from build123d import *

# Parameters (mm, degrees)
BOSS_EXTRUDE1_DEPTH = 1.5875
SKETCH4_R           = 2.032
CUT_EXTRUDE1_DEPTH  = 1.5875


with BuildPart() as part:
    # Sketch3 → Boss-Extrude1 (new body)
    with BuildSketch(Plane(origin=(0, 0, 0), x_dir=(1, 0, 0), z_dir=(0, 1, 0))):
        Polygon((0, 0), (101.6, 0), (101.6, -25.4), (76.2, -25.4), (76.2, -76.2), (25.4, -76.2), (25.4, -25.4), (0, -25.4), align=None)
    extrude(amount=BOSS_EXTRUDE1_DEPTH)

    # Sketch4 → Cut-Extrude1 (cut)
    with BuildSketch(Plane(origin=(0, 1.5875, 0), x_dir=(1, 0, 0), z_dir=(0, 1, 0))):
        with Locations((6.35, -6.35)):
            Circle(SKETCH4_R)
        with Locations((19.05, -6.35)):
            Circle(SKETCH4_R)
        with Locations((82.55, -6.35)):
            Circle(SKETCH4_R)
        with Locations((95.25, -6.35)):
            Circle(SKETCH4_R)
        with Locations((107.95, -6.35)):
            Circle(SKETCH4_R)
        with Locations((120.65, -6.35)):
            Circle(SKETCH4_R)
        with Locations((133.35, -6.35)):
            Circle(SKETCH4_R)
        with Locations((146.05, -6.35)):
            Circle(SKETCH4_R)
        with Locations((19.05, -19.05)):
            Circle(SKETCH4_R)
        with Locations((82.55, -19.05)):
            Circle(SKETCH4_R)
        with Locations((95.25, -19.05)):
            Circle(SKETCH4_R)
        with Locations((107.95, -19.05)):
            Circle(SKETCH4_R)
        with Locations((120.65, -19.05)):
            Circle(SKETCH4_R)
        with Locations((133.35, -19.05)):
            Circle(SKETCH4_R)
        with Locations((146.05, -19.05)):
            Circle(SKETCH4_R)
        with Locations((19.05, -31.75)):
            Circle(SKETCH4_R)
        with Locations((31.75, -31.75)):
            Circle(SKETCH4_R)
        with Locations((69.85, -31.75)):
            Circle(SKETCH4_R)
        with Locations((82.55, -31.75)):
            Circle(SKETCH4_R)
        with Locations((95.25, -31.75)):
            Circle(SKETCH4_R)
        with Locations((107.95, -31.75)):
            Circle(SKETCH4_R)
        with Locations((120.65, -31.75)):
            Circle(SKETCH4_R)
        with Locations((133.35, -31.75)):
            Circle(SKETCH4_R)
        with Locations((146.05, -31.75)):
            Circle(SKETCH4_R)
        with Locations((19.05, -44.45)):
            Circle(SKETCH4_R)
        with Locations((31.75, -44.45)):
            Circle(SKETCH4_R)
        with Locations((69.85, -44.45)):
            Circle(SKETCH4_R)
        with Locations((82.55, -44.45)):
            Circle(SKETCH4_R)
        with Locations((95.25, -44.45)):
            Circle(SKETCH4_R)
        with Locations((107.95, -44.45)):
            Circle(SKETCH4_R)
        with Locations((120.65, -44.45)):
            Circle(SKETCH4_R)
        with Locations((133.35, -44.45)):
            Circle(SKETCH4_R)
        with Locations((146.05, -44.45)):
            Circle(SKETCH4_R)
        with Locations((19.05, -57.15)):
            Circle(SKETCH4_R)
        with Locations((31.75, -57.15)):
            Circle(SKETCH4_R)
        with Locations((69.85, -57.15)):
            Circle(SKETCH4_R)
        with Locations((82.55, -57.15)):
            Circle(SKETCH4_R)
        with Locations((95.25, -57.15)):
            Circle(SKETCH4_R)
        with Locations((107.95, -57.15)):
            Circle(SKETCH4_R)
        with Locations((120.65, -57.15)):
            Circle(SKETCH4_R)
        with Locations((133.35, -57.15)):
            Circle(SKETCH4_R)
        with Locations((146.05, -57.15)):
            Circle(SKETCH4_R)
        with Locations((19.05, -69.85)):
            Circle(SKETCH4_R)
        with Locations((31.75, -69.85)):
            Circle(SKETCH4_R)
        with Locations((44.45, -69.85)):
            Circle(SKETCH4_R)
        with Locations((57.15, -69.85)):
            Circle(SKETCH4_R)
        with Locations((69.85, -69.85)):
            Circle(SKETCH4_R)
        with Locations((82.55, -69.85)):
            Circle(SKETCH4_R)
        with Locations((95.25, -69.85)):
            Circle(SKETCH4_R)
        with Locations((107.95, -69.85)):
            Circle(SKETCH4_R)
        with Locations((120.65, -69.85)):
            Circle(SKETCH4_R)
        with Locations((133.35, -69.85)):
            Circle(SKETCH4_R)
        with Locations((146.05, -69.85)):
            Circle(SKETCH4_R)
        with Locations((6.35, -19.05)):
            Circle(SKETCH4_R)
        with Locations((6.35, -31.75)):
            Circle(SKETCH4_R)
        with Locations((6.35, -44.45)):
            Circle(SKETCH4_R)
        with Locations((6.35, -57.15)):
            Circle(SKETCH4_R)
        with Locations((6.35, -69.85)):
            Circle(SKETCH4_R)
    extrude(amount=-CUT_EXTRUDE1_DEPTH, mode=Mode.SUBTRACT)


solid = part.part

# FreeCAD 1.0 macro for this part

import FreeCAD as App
import Part
import Sketcher

V = App.Vector
Q = App.Units.Quantity

doc = App.newDocument("Part")
body = doc.addObject("PartDesign::Body", "Body")

# Sketch on XZ plane
sketch1 = doc.addObject("Sketcher::SketchObject", "Sketch")
body.addObject(sketch1)
sketch1.AttachmentSupport = (doc.XZ_Plane, [""])
sketch1.MapMode = "FlatFace"
sketch1.addGeometry([
    Part.LineSegment(V(101.6, 0, 0), V(0, 0, 0)),  # 0
    Part.LineSegment(V(0, 0, 0), V(0, 25.4, 0)),  # 1
    Part.LineSegment(V(0, 25.4, 0), V(25.4, 25.4, 0)),  # 2
    Part.LineSegment(V(25.4, 25.4, 0), V(25.4, 76.2, 0)),  # 3
    Part.LineSegment(V(25.4, 76.2, 0), V(76.2, 76.2, 0)),  # 4
    Part.LineSegment(V(76.2, 76.2, 0), V(76.2, 25.4, 0)),  # 5
    Part.LineSegment(V(76.2, 25.4, 0), V(101.6, 25.4, 0)),  # 6
    Part.LineSegment(V(101.6, 25.4, 0), V(101.6, 0, 0)),  # 7
], False)
sketch1.addConstraint([
    Sketcher.Constraint("Coincident", 0, 2, 1, 1),
    Sketcher.Constraint("Coincident", 1, 2, 2, 1),
    Sketcher.Constraint("Coincident", 2, 2, 3, 1),
    Sketcher.Constraint("Coincident", 3, 2, 4, 1),
    Sketcher.Constraint("Coincident", 4, 2, 5, 1),
    Sketcher.Constraint("Coincident", 5, 2, 6, 1),
    Sketcher.Constraint("Coincident", 6, 2, 7, 1),
    Sketcher.Constraint("Coincident", 7, 2, 0, 1),
    Sketcher.Constraint("Horizontal", 0),
    Sketcher.Constraint("Vertical", 1),
    Sketcher.Constraint("Horizontal", 2),
    Sketcher.Constraint("Vertical", 3),
    Sketcher.Constraint("Horizontal", 4),
    Sketcher.Constraint("Vertical", 5),
    Sketcher.Constraint("Horizontal", 6),
    Sketcher.Constraint("Vertical", 7),
    Sketcher.Constraint("Coincident", 0, 2, -1, 1),
    Sketcher.Constraint("Horizontal", 2, 2, 5, 2),
    Sketcher.Constraint("Equal", 2, 6),
    Sketcher.Constraint("Equal", 6, 1),
    Sketcher.Constraint("Equal", 4, 3),
    Sketcher.Constraint("DistanceX", 0, 2, 0, 1, Q("4 in")),
    Sketcher.Constraint("DistanceX", 2, 1, 2, 2, Q("1 in")),
])
pad1 = doc.addObject("PartDesign::Pad", "Pad")
body.addObject(pad1)
pad1.Profile = sketch1
pad1.Length = Q("0.0625 in")
pad1.Reversed = True

# Sketch on XZ plane
sketch2 = doc.addObject("Sketcher::SketchObject", "Sketch001")
body.addObject(sketch2)
sketch2.AttachmentSupport = (doc.XZ_Plane, [""])
sketch2.MapMode = "FlatFace"
sketch2.AttachmentOffset = App.Placement(V(0, 0, -0.0625 * 25.4), App.Rotation())
sketch2.addGeometry([
    Part.Circle(V(6.35, 6.35, 0), V(0, 0, 1), 2.032),  # 0
    Part.Circle(V(19.05, 6.35, 0), V(0, 0, 1), 2.032),  # 1
    Part.Circle(V(82.55, 6.35, 0), V(0, 0, 1), 2.032),  # 2
    Part.Circle(V(95.25, 6.35, 0), V(0, 0, 1), 2.032),  # 3
    Part.Circle(V(107.95, 6.35, 0), V(0, 0, 1), 2.032),  # 4
    Part.Circle(V(120.65, 6.35, 0), V(0, 0, 1), 2.032),  # 5
    Part.Circle(V(133.35, 6.35, 0), V(0, 0, 1), 2.032),  # 6
    Part.Circle(V(146.05, 6.35, 0), V(0, 0, 1), 2.032),  # 7
    Part.Circle(V(19.05, 19.05, 0), V(0, 0, 1), 2.032),  # 8
    Part.Circle(V(82.55, 19.05, 0), V(0, 0, 1), 2.032),  # 9
    Part.Circle(V(95.25, 19.05, 0), V(0, 0, 1), 2.032),  # 10
    Part.Circle(V(107.95, 19.05, 0), V(0, 0, 1), 2.032),  # 11
    Part.Circle(V(120.65, 19.05, 0), V(0, 0, 1), 2.032),  # 12
    Part.Circle(V(133.35, 19.05, 0), V(0, 0, 1), 2.032),  # 13
    Part.Circle(V(146.05, 19.05, 0), V(0, 0, 1), 2.032),  # 14
    Part.Circle(V(19.05, 31.75, 0), V(0, 0, 1), 2.032),  # 15
    Part.Circle(V(31.75, 31.75, 0), V(0, 0, 1), 2.032),  # 16
    Part.Circle(V(69.85, 31.75, 0), V(0, 0, 1), 2.032),  # 17
    Part.Circle(V(82.55, 31.75, 0), V(0, 0, 1), 2.032),  # 18
    Part.Circle(V(95.25, 31.75, 0), V(0, 0, 1), 2.032),  # 19
    Part.Circle(V(107.95, 31.75, 0), V(0, 0, 1), 2.032),  # 20
    Part.Circle(V(120.65, 31.75, 0), V(0, 0, 1), 2.032),  # 21
    Part.Circle(V(133.35, 31.75, 0), V(0, 0, 1), 2.032),  # 22
    Part.Circle(V(146.05, 31.75, 0), V(0, 0, 1), 2.032),  # 23
    Part.Circle(V(19.05, 44.45, 0), V(0, 0, 1), 2.032),  # 24
    Part.Circle(V(31.75, 44.45, 0), V(0, 0, 1), 2.032),  # 25
    Part.Circle(V(69.85, 44.45, 0), V(0, 0, 1), 2.032),  # 26
    Part.Circle(V(82.55, 44.45, 0), V(0, 0, 1), 2.032),  # 27
    Part.Circle(V(95.25, 44.45, 0), V(0, 0, 1), 2.032),  # 28
    Part.Circle(V(107.95, 44.45, 0), V(0, 0, 1), 2.032),  # 29
    Part.Circle(V(120.65, 44.45, 0), V(0, 0, 1), 2.032),  # 30
    Part.Circle(V(133.35, 44.45, 0), V(0, 0, 1), 2.032),  # 31
    Part.Circle(V(146.05, 44.45, 0), V(0, 0, 1), 2.032),  # 32
    Part.Circle(V(19.05, 57.15, 0), V(0, 0, 1), 2.032),  # 33
    Part.Circle(V(31.75, 57.15, 0), V(0, 0, 1), 2.032),  # 34
    Part.Circle(V(69.85, 57.15, 0), V(0, 0, 1), 2.032),  # 35
    Part.Circle(V(82.55, 57.15, 0), V(0, 0, 1), 2.032),  # 36
    Part.Circle(V(95.25, 57.15, 0), V(0, 0, 1), 2.032),  # 37
    Part.Circle(V(107.95, 57.15, 0), V(0, 0, 1), 2.032),  # 38
    Part.Circle(V(120.65, 57.15, 0), V(0, 0, 1), 2.032),  # 39
    Part.Circle(V(133.35, 57.15, 0), V(0, 0, 1), 2.032),  # 40
    Part.Circle(V(146.05, 57.15, 0), V(0, 0, 1), 2.032),  # 41
    Part.Circle(V(19.05, 69.85, 0), V(0, 0, 1), 2.032),  # 42
    Part.Circle(V(31.75, 69.85, 0), V(0, 0, 1), 2.032),  # 43
    Part.Circle(V(44.45, 69.85, 0), V(0, 0, 1), 2.032),  # 44
    Part.Circle(V(57.15, 69.85, 0), V(0, 0, 1), 2.032),  # 45
    Part.Circle(V(69.85, 69.85, 0), V(0, 0, 1), 2.032),  # 46
    Part.Circle(V(82.55, 69.85, 0), V(0, 0, 1), 2.032),  # 47
    Part.Circle(V(95.25, 69.85, 0), V(0, 0, 1), 2.032),  # 48
    Part.Circle(V(107.95, 69.85, 0), V(0, 0, 1), 2.032),  # 49
    Part.Circle(V(120.65, 69.85, 0), V(0, 0, 1), 2.032),  # 50
    Part.Circle(V(133.35, 69.85, 0), V(0, 0, 1), 2.032),  # 51
    Part.Circle(V(146.05, 69.85, 0), V(0, 0, 1), 2.032),  # 52
    Part.Circle(V(6.35, 19.05, 0), V(0, 0, 1), 2.032),  # 53
    Part.Circle(V(6.35, 31.75, 0), V(0, 0, 1), 2.032),  # 54
    Part.Circle(V(6.35, 44.45, 0), V(0, 0, 1), 2.032),  # 55
    Part.Circle(V(6.35, 57.15, 0), V(0, 0, 1), 2.032),  # 56
    Part.Circle(V(6.35, 69.85, 0), V(0, 0, 1), 2.032),  # 57
], False)
sketch2.addConstraint([
    Sketcher.Constraint("Equal", 0, 1),
    Sketcher.Constraint("Equal", 1, 2),
    Sketcher.Constraint("Equal", 2, 3),
    Sketcher.Constraint("Equal", 3, 4),
    Sketcher.Constraint("Equal", 4, 5),
    Sketcher.Constraint("Equal", 5, 6),
    Sketcher.Constraint("Equal", 6, 7),
    Sketcher.Constraint("Equal", 7, 8),
    Sketcher.Constraint("Equal", 8, 9),
    Sketcher.Constraint("Equal", 9, 10),
    Sketcher.Constraint("Equal", 10, 11),
    Sketcher.Constraint("Equal", 11, 12),
    Sketcher.Constraint("Equal", 12, 13),
    Sketcher.Constraint("Equal", 13, 14),
    Sketcher.Constraint("Equal", 14, 15),
    Sketcher.Constraint("Equal", 15, 16),
    Sketcher.Constraint("Equal", 16, 17),
    Sketcher.Constraint("Equal", 17, 18),
    Sketcher.Constraint("Equal", 18, 19),
    Sketcher.Constraint("Equal", 19, 20),
    Sketcher.Constraint("Equal", 20, 21),
    Sketcher.Constraint("Equal", 21, 22),
    Sketcher.Constraint("Equal", 22, 23),
    Sketcher.Constraint("Equal", 23, 24),
    Sketcher.Constraint("Equal", 24, 25),
    Sketcher.Constraint("Equal", 25, 26),
    Sketcher.Constraint("Equal", 26, 27),
    Sketcher.Constraint("Equal", 27, 28),
    Sketcher.Constraint("Equal", 28, 29),
    Sketcher.Constraint("Equal", 29, 30),
    Sketcher.Constraint("Equal", 30, 31),
    Sketcher.Constraint("Equal", 31, 32),
    Sketcher.Constraint("Equal", 32, 33),
    Sketcher.Constraint("Equal", 33, 34),
    Sketcher.Constraint("Equal", 34, 35),
    Sketcher.Constraint("Equal", 35, 36),
    Sketcher.Constraint("Equal", 36, 37),
    Sketcher.Constraint("Equal", 37, 38),
    Sketcher.Constraint("Equal", 38, 39),
    Sketcher.Constraint("Equal", 39, 40),
    Sketcher.Constraint("Equal", 40, 41),
    Sketcher.Constraint("Equal", 41, 42),
    Sketcher.Constraint("Equal", 42, 43),
    Sketcher.Constraint("Equal", 43, 44),
    Sketcher.Constraint("Equal", 44, 45),
    Sketcher.Constraint("Equal", 45, 46),
    Sketcher.Constraint("Equal", 46, 47),
    Sketcher.Constraint("Equal", 47, 48),
    Sketcher.Constraint("Equal", 48, 49),
    Sketcher.Constraint("Equal", 49, 50),
    Sketcher.Constraint("Equal", 50, 51),
    Sketcher.Constraint("Equal", 51, 52),
    Sketcher.Constraint("Equal", 52, 53),
    Sketcher.Constraint("Equal", 53, 54),
    Sketcher.Constraint("Equal", 54, 55),
    Sketcher.Constraint("Equal", 55, 56),
    Sketcher.Constraint("Equal", 56, 57),
    Sketcher.Constraint("Horizontal", 0, 3, 1, 3),
    Sketcher.Constraint("Horizontal", 1, 3, 2, 3),
    Sketcher.Constraint("Horizontal", 2, 3, 3, 3),
    Sketcher.Constraint("Horizontal", 3, 3, 4, 3),
    Sketcher.Constraint("Horizontal", 4, 3, 5, 3),
    Sketcher.Constraint("Horizontal", 5, 3, 6, 3),
    Sketcher.Constraint("Horizontal", 6, 3, 7, 3),
    Sketcher.Constraint("Horizontal", 8, 3, 9, 3),
    Sketcher.Constraint("Horizontal", 9, 3, 10, 3),
    Sketcher.Constraint("Horizontal", 10, 3, 11, 3),
    Sketcher.Constraint("Horizontal", 11, 3, 12, 3),
    Sketcher.Constraint("Horizontal", 12, 3, 13, 3),
    Sketcher.Constraint("Horizontal", 13, 3, 14, 3),
    Sketcher.Constraint("Horizontal", 15, 3, 16, 3),
    Sketcher.Constraint("Horizontal", 16, 3, 17, 3),
    Sketcher.Constraint("Horizontal", 17, 3, 18, 3),
    Sketcher.Constraint("Horizontal", 18, 3, 19, 3),
    Sketcher.Constraint("Horizontal", 19, 3, 20, 3),
    Sketcher.Constraint("Horizontal", 20, 3, 21, 3),
    Sketcher.Constraint("Horizontal", 21, 3, 22, 3),
    Sketcher.Constraint("Horizontal", 22, 3, 23, 3),
    Sketcher.Constraint("Horizontal", 24, 3, 25, 3),
    Sketcher.Constraint("Horizontal", 25, 3, 26, 3),
    Sketcher.Constraint("Horizontal", 26, 3, 27, 3),
    Sketcher.Constraint("Horizontal", 27, 3, 28, 3),
    Sketcher.Constraint("Horizontal", 28, 3, 29, 3),
    Sketcher.Constraint("Horizontal", 29, 3, 30, 3),
    Sketcher.Constraint("Horizontal", 30, 3, 31, 3),
    Sketcher.Constraint("Horizontal", 31, 3, 32, 3),
    Sketcher.Constraint("Horizontal", 33, 3, 34, 3),
    Sketcher.Constraint("Horizontal", 34, 3, 35, 3),
    Sketcher.Constraint("Horizontal", 35, 3, 36, 3),
    Sketcher.Constraint("Horizontal", 36, 3, 37, 3),
    Sketcher.Constraint("Horizontal", 37, 3, 38, 3),
    Sketcher.Constraint("Horizontal", 38, 3, 39, 3),
    Sketcher.Constraint("Horizontal", 39, 3, 40, 3),
    Sketcher.Constraint("Horizontal", 40, 3, 41, 3),
    Sketcher.Constraint("Horizontal", 42, 3, 43, 3),
    Sketcher.Constraint("Horizontal", 43, 3, 44, 3),
    Sketcher.Constraint("Horizontal", 44, 3, 45, 3),
    Sketcher.Constraint("Horizontal", 45, 3, 46, 3),
    Sketcher.Constraint("Horizontal", 46, 3, 47, 3),
    Sketcher.Constraint("Horizontal", 47, 3, 48, 3),
    Sketcher.Constraint("Horizontal", 48, 3, 49, 3),
    Sketcher.Constraint("Horizontal", 49, 3, 50, 3),
    Sketcher.Constraint("Horizontal", 50, 3, 51, 3),
    Sketcher.Constraint("Horizontal", 51, 3, 52, 3),
    Sketcher.Constraint("Horizontal", 14, 3, 53, 3),
    Sketcher.Constraint("Horizontal", 23, 3, 54, 3),
    Sketcher.Constraint("Horizontal", 32, 3, 55, 3),
    Sketcher.Constraint("Horizontal", 41, 3, 56, 3),
    Sketcher.Constraint("Horizontal", 52, 3, 57, 3),
    Sketcher.Constraint("Vertical", 1, 3, 8, 3),
    Sketcher.Constraint("Vertical", 2, 3, 9, 3),
    Sketcher.Constraint("Vertical", 3, 3, 10, 3),
    Sketcher.Constraint("Vertical", 4, 3, 11, 3),
    Sketcher.Constraint("Vertical", 5, 3, 12, 3),
    Sketcher.Constraint("Vertical", 6, 3, 13, 3),
    Sketcher.Constraint("Vertical", 7, 3, 14, 3),
    Sketcher.Constraint("Vertical", 8, 3, 15, 3),
    Sketcher.Constraint("Vertical", 9, 3, 18, 3),
    Sketcher.Constraint("Vertical", 10, 3, 19, 3),
    Sketcher.Constraint("Vertical", 11, 3, 20, 3),
    Sketcher.Constraint("Vertical", 12, 3, 21, 3),
    Sketcher.Constraint("Vertical", 13, 3, 22, 3),
    Sketcher.Constraint("Vertical", 14, 3, 23, 3),
    Sketcher.Constraint("Vertical", 15, 3, 24, 3),
    Sketcher.Constraint("Vertical", 16, 3, 25, 3),
    Sketcher.Constraint("Vertical", 17, 3, 26, 3),
    Sketcher.Constraint("Vertical", 18, 3, 27, 3),
    Sketcher.Constraint("Vertical", 19, 3, 28, 3),
    Sketcher.Constraint("Vertical", 20, 3, 29, 3),
    Sketcher.Constraint("Vertical", 21, 3, 30, 3),
    Sketcher.Constraint("Vertical", 22, 3, 31, 3),
    Sketcher.Constraint("Vertical", 23, 3, 32, 3),
    Sketcher.Constraint("Vertical", 24, 3, 33, 3),
    Sketcher.Constraint("Vertical", 25, 3, 34, 3),
    Sketcher.Constraint("Vertical", 26, 3, 35, 3),
    Sketcher.Constraint("Vertical", 27, 3, 36, 3),
    Sketcher.Constraint("Vertical", 28, 3, 37, 3),
    Sketcher.Constraint("Vertical", 29, 3, 38, 3),
    Sketcher.Constraint("Vertical", 30, 3, 39, 3),
    Sketcher.Constraint("Vertical", 31, 3, 40, 3),
    Sketcher.Constraint("Vertical", 32, 3, 41, 3),
    Sketcher.Constraint("Vertical", 33, 3, 42, 3),
    Sketcher.Constraint("Vertical", 34, 3, 43, 3),
    Sketcher.Constraint("Vertical", 35, 3, 46, 3),
    Sketcher.Constraint("Vertical", 36, 3, 47, 3),
    Sketcher.Constraint("Vertical", 37, 3, 48, 3),
    Sketcher.Constraint("Vertical", 38, 3, 49, 3),
    Sketcher.Constraint("Vertical", 39, 3, 50, 3),
    Sketcher.Constraint("Vertical", 40, 3, 51, 3),
    Sketcher.Constraint("Vertical", 41, 3, 52, 3),
    Sketcher.Constraint("Vertical", 0, 3, 53, 3),
    Sketcher.Constraint("Vertical", 53, 3, 54, 3),
    Sketcher.Constraint("Vertical", 54, 3, 55, 3),
    Sketcher.Constraint("Vertical", 55, 3, 56, 3),
    Sketcher.Constraint("Vertical", 56, 3, 57, 3),
    Sketcher.Constraint("Diameter", 0, Q("0.16 in")),
    Sketcher.Constraint("DistanceX", 0, 3, 2, 3, Q("3 in")),
    Sketcher.Constraint("DistanceX", 1, 3, 3, 3, Q("3 in")),
    Sketcher.Constraint("DistanceX", 2, 3, 4, 3, Q("1 in")),
    Sketcher.Constraint("DistanceX", 3, 3, 5, 3, Q("1 in")),
    Sketcher.Constraint("DistanceX", 4, 3, 6, 3, Q("1 in")),
    Sketcher.Constraint("DistanceX", 5, 3, 7, 3, Q("1 in")),
    Sketcher.Constraint("DistanceY", 1, 3, 15, 3, Q("1 in")),
    Sketcher.Constraint("DistanceX", 0, 3, 16, 3, Q("1 in")),
    Sketcher.Constraint("DistanceX", 17, 3, 10, 3, Q("1 in")),
    Sketcher.Constraint("DistanceY", 8, 3, 24, 3, Q("1 in")),
    Sketcher.Constraint("DistanceY", 15, 3, 33, 3, Q("1 in")),
    Sketcher.Constraint("DistanceY", 24, 3, 42, 3, Q("1 in")),
    Sketcher.Constraint("DistanceX", 42, 3, 44, 3, Q("1 in")),
    Sketcher.Constraint("DistanceX", 43, 3, 45, 3, Q("1 in")),
    Sketcher.Constraint("DistanceX", 0, 3, 1, 3, Q("0.5 in")),
    Sketcher.Constraint("DistanceY", 1, 3, 8, 3, Q("0.5 in")),
    Sketcher.Constraint("DistanceX", -1, 1, 0, 3, Q("0.25 in")),
    Sketcher.Constraint("DistanceY", -1, 1, 0, 3, Q("0.25 in")),
])
pocket1 = doc.addObject("PartDesign::Pocket", "Pocket")
body.addObject(pocket1)
pocket1.Profile = sketch2
pocket1.Length = Q("0.0625 in")
pocket1.Reversed = True

doc.recompute()
